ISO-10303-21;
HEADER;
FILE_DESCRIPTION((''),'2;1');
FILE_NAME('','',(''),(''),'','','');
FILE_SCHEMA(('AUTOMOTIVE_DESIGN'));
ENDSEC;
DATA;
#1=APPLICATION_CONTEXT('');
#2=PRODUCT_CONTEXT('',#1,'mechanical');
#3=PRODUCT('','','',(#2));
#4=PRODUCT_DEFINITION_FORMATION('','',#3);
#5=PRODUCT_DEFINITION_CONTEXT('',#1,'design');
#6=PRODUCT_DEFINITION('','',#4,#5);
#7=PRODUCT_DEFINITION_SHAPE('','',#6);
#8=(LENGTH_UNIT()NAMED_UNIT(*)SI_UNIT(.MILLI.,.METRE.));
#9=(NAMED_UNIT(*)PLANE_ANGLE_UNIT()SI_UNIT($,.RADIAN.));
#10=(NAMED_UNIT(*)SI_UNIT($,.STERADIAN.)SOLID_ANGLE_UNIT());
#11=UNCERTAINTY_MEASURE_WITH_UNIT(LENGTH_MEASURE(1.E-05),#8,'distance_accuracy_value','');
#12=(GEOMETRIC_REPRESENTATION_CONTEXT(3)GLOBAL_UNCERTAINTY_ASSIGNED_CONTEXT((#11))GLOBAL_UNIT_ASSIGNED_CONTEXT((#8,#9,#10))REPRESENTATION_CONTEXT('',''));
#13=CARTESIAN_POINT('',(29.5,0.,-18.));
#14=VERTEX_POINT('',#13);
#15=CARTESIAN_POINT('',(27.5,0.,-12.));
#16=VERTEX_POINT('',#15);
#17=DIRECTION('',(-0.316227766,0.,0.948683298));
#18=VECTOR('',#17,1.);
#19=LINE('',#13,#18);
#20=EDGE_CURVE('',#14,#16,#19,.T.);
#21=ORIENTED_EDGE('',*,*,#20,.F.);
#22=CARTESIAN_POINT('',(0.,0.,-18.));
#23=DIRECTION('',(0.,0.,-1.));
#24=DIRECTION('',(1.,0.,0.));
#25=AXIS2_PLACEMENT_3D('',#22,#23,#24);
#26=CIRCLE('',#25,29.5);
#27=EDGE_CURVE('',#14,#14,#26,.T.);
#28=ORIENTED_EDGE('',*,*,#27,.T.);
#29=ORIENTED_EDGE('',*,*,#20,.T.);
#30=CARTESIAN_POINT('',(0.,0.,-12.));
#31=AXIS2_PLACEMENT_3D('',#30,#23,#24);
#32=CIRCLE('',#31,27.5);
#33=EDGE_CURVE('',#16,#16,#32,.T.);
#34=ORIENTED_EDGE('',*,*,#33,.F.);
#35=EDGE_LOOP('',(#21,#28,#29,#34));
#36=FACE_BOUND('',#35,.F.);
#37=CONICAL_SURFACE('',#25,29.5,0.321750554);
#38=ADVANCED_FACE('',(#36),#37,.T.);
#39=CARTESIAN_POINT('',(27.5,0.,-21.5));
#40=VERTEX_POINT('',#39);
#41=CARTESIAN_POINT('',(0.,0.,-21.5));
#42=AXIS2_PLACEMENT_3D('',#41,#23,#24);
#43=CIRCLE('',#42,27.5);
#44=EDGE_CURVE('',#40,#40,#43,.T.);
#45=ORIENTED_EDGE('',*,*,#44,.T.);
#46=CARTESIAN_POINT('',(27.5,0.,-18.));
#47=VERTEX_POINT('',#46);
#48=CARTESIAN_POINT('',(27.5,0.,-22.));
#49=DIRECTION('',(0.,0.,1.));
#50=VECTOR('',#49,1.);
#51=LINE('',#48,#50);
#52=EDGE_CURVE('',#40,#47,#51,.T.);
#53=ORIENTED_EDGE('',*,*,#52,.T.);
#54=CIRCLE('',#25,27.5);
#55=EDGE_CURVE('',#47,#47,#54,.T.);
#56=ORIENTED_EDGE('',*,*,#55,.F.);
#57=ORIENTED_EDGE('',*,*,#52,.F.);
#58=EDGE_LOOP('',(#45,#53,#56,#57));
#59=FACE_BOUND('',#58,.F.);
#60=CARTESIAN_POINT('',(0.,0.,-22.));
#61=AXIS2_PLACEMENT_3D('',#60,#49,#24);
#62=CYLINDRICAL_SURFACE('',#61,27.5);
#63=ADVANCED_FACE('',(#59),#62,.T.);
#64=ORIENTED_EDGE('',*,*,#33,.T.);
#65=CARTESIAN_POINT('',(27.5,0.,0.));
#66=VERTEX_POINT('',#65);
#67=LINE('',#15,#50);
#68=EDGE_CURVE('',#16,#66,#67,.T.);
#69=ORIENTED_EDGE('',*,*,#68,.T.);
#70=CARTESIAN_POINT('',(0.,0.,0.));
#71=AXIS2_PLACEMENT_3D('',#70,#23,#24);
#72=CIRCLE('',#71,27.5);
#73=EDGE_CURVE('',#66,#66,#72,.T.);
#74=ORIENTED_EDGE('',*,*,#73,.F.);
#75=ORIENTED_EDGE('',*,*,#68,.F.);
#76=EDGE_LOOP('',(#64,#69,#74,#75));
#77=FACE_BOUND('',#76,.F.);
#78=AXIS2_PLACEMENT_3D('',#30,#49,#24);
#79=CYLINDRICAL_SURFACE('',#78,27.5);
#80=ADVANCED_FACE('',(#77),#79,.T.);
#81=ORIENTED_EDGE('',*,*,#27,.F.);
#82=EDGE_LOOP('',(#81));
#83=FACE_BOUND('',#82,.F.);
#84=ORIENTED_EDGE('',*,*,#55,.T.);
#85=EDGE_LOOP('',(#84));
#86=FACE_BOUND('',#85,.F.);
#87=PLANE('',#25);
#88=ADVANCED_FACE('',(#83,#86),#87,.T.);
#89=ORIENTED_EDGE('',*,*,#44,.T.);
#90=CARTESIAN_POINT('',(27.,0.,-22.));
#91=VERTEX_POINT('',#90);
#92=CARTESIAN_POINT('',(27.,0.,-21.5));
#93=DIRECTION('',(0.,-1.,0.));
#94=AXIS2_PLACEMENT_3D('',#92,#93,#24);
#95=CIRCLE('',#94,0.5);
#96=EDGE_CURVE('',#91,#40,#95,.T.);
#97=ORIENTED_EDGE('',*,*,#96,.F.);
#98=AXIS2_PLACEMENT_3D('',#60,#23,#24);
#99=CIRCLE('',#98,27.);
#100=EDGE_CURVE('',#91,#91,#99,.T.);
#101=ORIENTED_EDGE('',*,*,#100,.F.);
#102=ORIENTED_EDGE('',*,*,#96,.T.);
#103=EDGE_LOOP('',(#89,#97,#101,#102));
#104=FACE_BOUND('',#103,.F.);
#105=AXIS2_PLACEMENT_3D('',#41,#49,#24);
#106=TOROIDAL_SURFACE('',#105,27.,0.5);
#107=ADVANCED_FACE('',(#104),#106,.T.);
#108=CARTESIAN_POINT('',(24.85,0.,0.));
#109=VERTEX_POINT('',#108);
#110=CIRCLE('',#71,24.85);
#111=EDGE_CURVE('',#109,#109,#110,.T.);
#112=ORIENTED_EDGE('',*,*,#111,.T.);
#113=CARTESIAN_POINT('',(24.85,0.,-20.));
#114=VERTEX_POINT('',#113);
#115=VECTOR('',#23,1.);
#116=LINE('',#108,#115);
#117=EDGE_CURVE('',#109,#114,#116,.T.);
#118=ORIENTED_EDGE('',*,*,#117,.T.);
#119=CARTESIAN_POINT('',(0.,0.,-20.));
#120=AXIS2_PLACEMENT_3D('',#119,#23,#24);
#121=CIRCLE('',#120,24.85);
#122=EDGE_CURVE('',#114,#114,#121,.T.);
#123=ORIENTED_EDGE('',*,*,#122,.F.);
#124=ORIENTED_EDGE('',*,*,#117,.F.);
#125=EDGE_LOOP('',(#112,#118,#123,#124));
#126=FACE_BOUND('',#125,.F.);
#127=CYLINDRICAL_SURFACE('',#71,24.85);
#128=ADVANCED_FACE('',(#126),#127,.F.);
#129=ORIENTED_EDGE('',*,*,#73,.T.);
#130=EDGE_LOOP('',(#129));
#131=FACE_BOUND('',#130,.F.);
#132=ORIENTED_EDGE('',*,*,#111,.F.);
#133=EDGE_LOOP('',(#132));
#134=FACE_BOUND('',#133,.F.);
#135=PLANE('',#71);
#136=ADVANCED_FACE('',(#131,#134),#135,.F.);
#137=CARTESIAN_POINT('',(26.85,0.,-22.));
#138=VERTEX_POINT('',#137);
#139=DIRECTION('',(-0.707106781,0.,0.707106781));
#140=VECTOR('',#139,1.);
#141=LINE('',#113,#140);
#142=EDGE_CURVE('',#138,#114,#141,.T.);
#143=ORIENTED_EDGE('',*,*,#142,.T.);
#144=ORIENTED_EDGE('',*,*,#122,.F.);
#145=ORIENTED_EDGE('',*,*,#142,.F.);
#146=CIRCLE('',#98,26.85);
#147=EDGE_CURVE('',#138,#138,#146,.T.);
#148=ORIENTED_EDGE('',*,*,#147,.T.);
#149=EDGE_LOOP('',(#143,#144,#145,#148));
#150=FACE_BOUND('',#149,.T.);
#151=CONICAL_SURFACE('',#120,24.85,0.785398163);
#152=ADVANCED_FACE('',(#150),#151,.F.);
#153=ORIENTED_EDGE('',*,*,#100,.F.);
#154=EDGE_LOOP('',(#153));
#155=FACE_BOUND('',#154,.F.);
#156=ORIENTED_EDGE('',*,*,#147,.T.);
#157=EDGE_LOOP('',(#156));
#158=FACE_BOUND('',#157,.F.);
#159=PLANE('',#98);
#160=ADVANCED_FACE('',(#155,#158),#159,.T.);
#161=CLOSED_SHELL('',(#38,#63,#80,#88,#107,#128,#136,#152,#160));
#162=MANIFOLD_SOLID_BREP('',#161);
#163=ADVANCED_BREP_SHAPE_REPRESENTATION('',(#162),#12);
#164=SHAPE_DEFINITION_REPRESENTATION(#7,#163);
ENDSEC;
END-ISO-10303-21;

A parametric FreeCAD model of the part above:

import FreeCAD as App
import Part
import Sketcher

V = App.Vector
Q = App.Units.Quantity


def edges_at(feature, points):
    """Names of the edges that pass closest to the given points."""
    edges = feature.Shape.Edges
    near = lambda p: min(range(len(edges)), key=lambda i: edges[i].distToShape(Part.Vertex(*p))[0])
    return sorted({f"Edge{near(p) + 1}" for p in points})


def add_polygon(sketch, points):
    """Adds a closed chain of lines whose ends are joined by coincident constraints."""
    first, n = sketch.GeometryCount, len(points)
    for a, b in zip(points, points[1:] + points[:1]):
        sketch.addGeometry(Part.LineSegment(App.Vector(*a, 0), App.Vector(*b, 0)), False)
    for i in range(n):
        sketch.addConstraint(Sketcher.Constraint("Coincident", first + i, 2, first + (i + 1) % n, 1))

doc = App.newDocument("Part")
body = doc.addObject("PartDesign::Body", "Body")

sketch1 = doc.addObject("Sketcher::SketchObject", "Sketch")
body.addObject(sketch1)
sketch1.AttachmentSupport = (doc.XZ_Plane, [""])
sketch1.MapMode = "FlatFace"
add_polygon(sketch1, [(27.5, 0), (24.9, 0), (24.9, -22), (27.5, -22), (27.5, -18), (29.5, -18), (27.5, -12)])
sketch1.addConstraint(Sketcher.Constraint("Horizontal", 0))
sketch1.addConstraint(Sketcher.Constraint("Vertical", 1))
sketch1.addConstraint(Sketcher.Constraint("Horizontal", 2))
sketch1.addConstraint(Sketcher.Constraint("Vertical", 3))
sketch1.addConstraint(Sketcher.Constraint("Horizontal", 4))
sketch1.addConstraint(Sketcher.Constraint("Vertical", 6))
sketch1.addConstraint(Sketcher.Constraint("PointOnObject", 0, 2, -1))
sketch1.addConstraint(Sketcher.Constraint("Vertical", 3, 2, 5, 2))
sketch1.addConstraint(Sketcher.Constraint("DistanceX", 4, 1, 4, 2, Q("2 mm")))
sketch1.addConstraint(Sketcher.Constraint("DistanceY", 1, 2, 1, 1, Q("22 mm")))
sketch1.addConstraint(Sketcher.Constraint("DistanceY", 3, 1, 3, 2, Q("4 mm")))
sketch1.addConstraint(Sketcher.Constraint("DistanceY", 6, 1, 6, 2, Q("12 mm")))
sketch1.addConstraint(Sketcher.Constraint("DistanceX", 0, 2, 0, 1, Q("2.65 mm")))
sketch1.addConstraint(Sketcher.Constraint("DistanceX", -1, 1, 2, 2, Q("27.5 mm")))
revolution = doc.addObject("PartDesign::Revolution", "Revolution")
body.addObject(revolution)
revolution.Profile = sketch1
revolution.ReferenceAxis = (sketch1, ["V_Axis"])
revolution.Angle = 360
doc.recompute()

fillet = doc.addObject("PartDesign::Fillet", "Fillet")
body.addObject(fillet)
fillet.Base = (revolution, edges_at(revolution, [(-27.5, 0, -22)]))
fillet.Radius = 0.5
doc.recompute()

chamfer = doc.addObject("PartDesign::Chamfer", "Chamfer")
body.addObject(chamfer)
chamfer.Base = (fillet, edges_at(fillet, [(-24.85, 0, -22)]))
chamfer.Size = 2

doc.recompute()
